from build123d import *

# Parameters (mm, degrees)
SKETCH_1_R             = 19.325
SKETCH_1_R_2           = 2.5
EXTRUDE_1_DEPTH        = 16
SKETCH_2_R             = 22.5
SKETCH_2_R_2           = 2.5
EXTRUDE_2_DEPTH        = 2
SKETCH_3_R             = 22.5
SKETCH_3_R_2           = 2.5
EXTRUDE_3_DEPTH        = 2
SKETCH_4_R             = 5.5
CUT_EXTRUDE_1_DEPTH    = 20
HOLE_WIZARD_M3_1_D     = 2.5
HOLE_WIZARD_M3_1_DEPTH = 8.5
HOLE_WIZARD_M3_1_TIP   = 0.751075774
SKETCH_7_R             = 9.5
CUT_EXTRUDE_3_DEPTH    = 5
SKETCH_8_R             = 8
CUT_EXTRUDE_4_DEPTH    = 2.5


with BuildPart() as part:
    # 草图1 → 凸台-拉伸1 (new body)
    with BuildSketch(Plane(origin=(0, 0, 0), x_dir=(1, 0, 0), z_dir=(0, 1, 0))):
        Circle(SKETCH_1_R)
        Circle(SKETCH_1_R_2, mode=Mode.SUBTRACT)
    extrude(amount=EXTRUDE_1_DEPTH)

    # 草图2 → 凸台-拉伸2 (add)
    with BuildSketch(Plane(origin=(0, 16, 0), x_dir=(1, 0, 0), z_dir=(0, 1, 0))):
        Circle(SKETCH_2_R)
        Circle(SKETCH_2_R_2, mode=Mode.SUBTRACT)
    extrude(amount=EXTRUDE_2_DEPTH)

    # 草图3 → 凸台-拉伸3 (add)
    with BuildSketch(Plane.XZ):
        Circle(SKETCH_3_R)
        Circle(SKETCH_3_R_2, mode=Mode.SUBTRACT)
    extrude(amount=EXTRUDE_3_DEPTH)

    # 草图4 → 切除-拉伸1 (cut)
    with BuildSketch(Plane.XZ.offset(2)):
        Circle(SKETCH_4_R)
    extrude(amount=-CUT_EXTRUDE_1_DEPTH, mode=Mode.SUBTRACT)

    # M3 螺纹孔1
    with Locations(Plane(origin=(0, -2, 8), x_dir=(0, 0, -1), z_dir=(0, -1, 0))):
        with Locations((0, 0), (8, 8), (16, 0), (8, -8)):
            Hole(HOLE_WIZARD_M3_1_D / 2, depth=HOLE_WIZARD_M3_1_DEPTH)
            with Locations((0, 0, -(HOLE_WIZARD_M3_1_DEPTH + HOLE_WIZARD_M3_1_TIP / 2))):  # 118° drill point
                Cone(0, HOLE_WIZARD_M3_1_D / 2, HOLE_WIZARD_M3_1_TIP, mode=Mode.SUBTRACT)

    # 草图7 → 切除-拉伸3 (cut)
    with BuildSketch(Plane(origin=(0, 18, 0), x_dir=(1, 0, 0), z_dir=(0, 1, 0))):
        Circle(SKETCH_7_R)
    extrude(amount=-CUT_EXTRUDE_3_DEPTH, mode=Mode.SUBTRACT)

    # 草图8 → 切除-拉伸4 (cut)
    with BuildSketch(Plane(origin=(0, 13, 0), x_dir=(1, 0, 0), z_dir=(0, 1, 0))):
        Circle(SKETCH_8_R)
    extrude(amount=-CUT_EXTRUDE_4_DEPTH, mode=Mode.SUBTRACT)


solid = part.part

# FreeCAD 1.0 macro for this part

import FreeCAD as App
import Part
import Sketcher
from FreeCAD import Vector
Q = App.Units.Quantity

doc = App.newDocument("Part")
body = doc.addObject("PartDesign::Body", "Body")

sketch1 = body.newObject("Sketcher::SketchObject", "Sketch")
sketch1.AttachmentSupport = (doc.getObject("XZ_Plane"), [""])
sketch1.MapMode = "FlatFace"
sketch1.addGeometry(Part.Circle(Vector(0, 0, 0), Vector(0, 0, 1), 19.3), False)
sketch1.addGeometry(Part.Circle(Vector(0, 0, 0), Vector(0, 0, 1), 2.5), False)
sketch1.addConstraint(Sketcher.Constraint("Coincident", 0, 3, -1, 1))
sketch1.addConstraint(Sketcher.Constraint("Coincident", 1, 3, -1, 1))
sketch1.addConstraint(Sketcher.Constraint("Diameter", 1, Q("5 mm")))
sketch1.addConstraint(Sketcher.Constraint("Diameter", 0, Q("38.65 mm")))
pad1 = body.newObject("PartDesign::Pad", "Pad")
pad1.Profile = sketch1
pad1.Length = 16
pad1.Reversed = True

sketch2 = body.newObject("Sketcher::SketchObject", "Sketch001")
sketch2.AttachmentSupport = (doc.getObject("XZ_Plane"), [""])
sketch2.MapMode = "FlatFace"
sketch2.AttachmentOffset = App.Placement(Vector(0, 0, -16), App.Rotation())
sketch2.addGeometry(Part.Circle(Vector(0, 0, 0), Vector(0, 0, 1), 22.5), False)
sketch2.addGeometry(Part.Circle(Vector(0, 0, 0), Vector(0, 0, 1), 2.5), False)
sketch2.addConstraint(Sketcher.Constraint("Coincident", 0, 3, -1, 1))
sketch2.addConstraint(Sketcher.Constraint("Coincident", 1, 3, -1, 1))
sketch2.addConstraint(Sketcher.Constraint("Diameter", 0, Q("45 mm")))
sketch2.addConstraint(Sketcher.Constraint("Diameter", 1, Q("5 mm")))
pad2 = body.newObject("PartDesign::Pad", "Pad001")
pad2.Profile = sketch2
pad2.Length = 2
pad2.Reversed = True

sketch3 = body.newObject("Sketcher::SketchObject", "Sketch002")
sketch3.AttachmentSupport = (doc.getObject("XZ_Plane"), [""])
sketch3.MapMode = "FlatFace"
sketch3.addGeometry(Part.Circle(Vector(0, 0, 0), Vector(0, 0, 1), 22.5), False)
sketch3.addGeometry(Part.Circle(Vector(0, 0, 0), Vector(0, 0, 1), 2.5), False)
sketch3.addConstraint(Sketcher.Constraint("Coincident", 0, 3, -1, 1))
sketch3.addConstraint(Sketcher.Constraint("Coincident", 1, 3, -1, 1))
sketch3.addConstraint(Sketcher.Constraint("Diameter", 0, Q("45 mm")))
sketch3.addConstraint(Sketcher.Constraint("Diameter", 1, Q("5 mm")))
pad3 = body.newObject("PartDesign::Pad", "Pad002")
pad3.Profile = sketch3
pad3.Length = 2

sketch4 = body.newObject("Sketcher::SketchObject", "Sketch003")
sketch4.AttachmentSupport = (doc.getObject("XZ_Plane"), [""])
sketch4.MapMode = "FlatFace"
sketch4.AttachmentOffset = App.Placement(Vector(0, 0, 2), App.Rotation())
sketch4.addGeometry(Part.Circle(Vector(0, 0, 0), Vector(0, 0, 1), 6), False)
sketch4.addConstraint(Sketcher.Constraint("Coincident", 0, 3, -1, 1))
sketch4.addConstraint(Sketcher.Constraint("Diameter", 0, Q("11 mm")))
pocket1 = body.newObject("PartDesign::Pocket", "Pocket")
pocket1.Profile = sketch4
pocket1.Length = 20

sketch5 = body.newObject("Sketcher::SketchObject", "Sketch004")
sketch5.AttachmentSupport = (doc.getObject("XZ_Plane"), [""])
sketch5.MapMode = "FlatFace"
sketch5.AttachmentOffset = App.Placement(Vector(0, 0, 2), App.Rotation())
sketch5.addGeometry(Part.Circle(Vector(0, 8, 0), Vector(0, 0, 1), 1.2), False)
sketch5.addGeometry(Part.Circle(Vector(8, 0, 0), Vector(0, 0, 1), 1.2), False)
sketch5.addGeometry(Part.Circle(Vector(0, -8, 0), Vector(0, 0, 1), 1.2), False)
sketch5.addGeometry(Part.Circle(Vector(-8, 0, 0), Vector(0, 0, 1), 1.2), False)
sketch5.addConstraint(Sketcher.Constraint("Equal", 0, 1))
sketch5.addConstraint(Sketcher.Constraint("Equal", 1, 2))
sketch5.addConstraint(Sketcher.Constraint("Equal", 2, 3))
sketch5.addConstraint(Sketcher.Constraint("Symmetric", 0, 3, 2, 3, -1, 1))
sketch5.addConstraint(Sketcher.Constraint("Symmetric", 1, 3, 3, 3, -1, 1))
sketch5.addConstraint(Sketcher.Constraint("PointOnObject", 0, 3, -2))
sketch5.addConstraint(Sketcher.Constraint("PointOnObject", 1, 3, -1))
sketch5.addConstraint(Sketcher.Constraint("Diameter", 0, Q("2.5 mm")))
sketch5.addConstraint(Sketcher.Constraint("DistanceY", -1, 1, 0, 3, Q("8 mm")))
sketch5.addConstraint(Sketcher.Constraint("DistanceX", -1, 1, 1, 3, Q("8 mm")))
doc.recompute()
hole = body.newObject("PartDesign::Hole", "Hole")
hole.Profile = sketch5
hole.ThreadType = "None"
hole.Diameter = 2.5
hole.DepthType = "Dimension"
hole.Depth = 8.5
hole.DrillPoint = "Angled"
hole.DrillPointAngle = 118

sketch6 = body.newObject("Sketcher::SketchObject", "Sketch005")
sketch6.AttachmentSupport = (doc.getObject("XZ_Plane"), [""])
sketch6.MapMode = "FlatFace"
sketch6.AttachmentOffset = App.Placement(Vector(0, 0, -18), App.Rotation())
sketch6.addGeometry(Part.Circle(Vector(0, 0, 0), Vector(0, 0, 1), 10), False)
sketch6.addConstraint(Sketcher.Constraint("Coincident", 0, 3, -1, 1))
sketch6.addConstraint(Sketcher.Constraint("Diameter", 0, Q("19 mm")))
pocket2 = body.newObject("PartDesign::Pocket", "Pocket001")
pocket2.Profile = sketch6
pocket2.Length = 5
pocket2.Reversed = True

sketch7 = body.newObject("Sketcher::SketchObject", "Sketch006")
sketch7.AttachmentSupport = (doc.getObject("XZ_Plane"), [""])
sketch7.MapMode = "FlatFace"
sketch7.AttachmentOffset = App.Placement(Vector(0, 0, -13), App.Rotation())
sketch7.addGeometry(Part.Circle(Vector(0, 0, 0), Vector(0, 0, 1), 8), False)
sketch7.addConstraint(Sketcher.Constraint("Coincident", 0, 3, -1, 1))
sketch7.addConstraint(Sketcher.Constraint("Diameter", 0, Q("16 mm")))
pocket3 = body.newObject("PartDesign::Pocket", "Pocket002")
pocket3.Profile = sketch7
pocket3.Length = 2.5
pocket3.Reversed = True

doc.recompute()
